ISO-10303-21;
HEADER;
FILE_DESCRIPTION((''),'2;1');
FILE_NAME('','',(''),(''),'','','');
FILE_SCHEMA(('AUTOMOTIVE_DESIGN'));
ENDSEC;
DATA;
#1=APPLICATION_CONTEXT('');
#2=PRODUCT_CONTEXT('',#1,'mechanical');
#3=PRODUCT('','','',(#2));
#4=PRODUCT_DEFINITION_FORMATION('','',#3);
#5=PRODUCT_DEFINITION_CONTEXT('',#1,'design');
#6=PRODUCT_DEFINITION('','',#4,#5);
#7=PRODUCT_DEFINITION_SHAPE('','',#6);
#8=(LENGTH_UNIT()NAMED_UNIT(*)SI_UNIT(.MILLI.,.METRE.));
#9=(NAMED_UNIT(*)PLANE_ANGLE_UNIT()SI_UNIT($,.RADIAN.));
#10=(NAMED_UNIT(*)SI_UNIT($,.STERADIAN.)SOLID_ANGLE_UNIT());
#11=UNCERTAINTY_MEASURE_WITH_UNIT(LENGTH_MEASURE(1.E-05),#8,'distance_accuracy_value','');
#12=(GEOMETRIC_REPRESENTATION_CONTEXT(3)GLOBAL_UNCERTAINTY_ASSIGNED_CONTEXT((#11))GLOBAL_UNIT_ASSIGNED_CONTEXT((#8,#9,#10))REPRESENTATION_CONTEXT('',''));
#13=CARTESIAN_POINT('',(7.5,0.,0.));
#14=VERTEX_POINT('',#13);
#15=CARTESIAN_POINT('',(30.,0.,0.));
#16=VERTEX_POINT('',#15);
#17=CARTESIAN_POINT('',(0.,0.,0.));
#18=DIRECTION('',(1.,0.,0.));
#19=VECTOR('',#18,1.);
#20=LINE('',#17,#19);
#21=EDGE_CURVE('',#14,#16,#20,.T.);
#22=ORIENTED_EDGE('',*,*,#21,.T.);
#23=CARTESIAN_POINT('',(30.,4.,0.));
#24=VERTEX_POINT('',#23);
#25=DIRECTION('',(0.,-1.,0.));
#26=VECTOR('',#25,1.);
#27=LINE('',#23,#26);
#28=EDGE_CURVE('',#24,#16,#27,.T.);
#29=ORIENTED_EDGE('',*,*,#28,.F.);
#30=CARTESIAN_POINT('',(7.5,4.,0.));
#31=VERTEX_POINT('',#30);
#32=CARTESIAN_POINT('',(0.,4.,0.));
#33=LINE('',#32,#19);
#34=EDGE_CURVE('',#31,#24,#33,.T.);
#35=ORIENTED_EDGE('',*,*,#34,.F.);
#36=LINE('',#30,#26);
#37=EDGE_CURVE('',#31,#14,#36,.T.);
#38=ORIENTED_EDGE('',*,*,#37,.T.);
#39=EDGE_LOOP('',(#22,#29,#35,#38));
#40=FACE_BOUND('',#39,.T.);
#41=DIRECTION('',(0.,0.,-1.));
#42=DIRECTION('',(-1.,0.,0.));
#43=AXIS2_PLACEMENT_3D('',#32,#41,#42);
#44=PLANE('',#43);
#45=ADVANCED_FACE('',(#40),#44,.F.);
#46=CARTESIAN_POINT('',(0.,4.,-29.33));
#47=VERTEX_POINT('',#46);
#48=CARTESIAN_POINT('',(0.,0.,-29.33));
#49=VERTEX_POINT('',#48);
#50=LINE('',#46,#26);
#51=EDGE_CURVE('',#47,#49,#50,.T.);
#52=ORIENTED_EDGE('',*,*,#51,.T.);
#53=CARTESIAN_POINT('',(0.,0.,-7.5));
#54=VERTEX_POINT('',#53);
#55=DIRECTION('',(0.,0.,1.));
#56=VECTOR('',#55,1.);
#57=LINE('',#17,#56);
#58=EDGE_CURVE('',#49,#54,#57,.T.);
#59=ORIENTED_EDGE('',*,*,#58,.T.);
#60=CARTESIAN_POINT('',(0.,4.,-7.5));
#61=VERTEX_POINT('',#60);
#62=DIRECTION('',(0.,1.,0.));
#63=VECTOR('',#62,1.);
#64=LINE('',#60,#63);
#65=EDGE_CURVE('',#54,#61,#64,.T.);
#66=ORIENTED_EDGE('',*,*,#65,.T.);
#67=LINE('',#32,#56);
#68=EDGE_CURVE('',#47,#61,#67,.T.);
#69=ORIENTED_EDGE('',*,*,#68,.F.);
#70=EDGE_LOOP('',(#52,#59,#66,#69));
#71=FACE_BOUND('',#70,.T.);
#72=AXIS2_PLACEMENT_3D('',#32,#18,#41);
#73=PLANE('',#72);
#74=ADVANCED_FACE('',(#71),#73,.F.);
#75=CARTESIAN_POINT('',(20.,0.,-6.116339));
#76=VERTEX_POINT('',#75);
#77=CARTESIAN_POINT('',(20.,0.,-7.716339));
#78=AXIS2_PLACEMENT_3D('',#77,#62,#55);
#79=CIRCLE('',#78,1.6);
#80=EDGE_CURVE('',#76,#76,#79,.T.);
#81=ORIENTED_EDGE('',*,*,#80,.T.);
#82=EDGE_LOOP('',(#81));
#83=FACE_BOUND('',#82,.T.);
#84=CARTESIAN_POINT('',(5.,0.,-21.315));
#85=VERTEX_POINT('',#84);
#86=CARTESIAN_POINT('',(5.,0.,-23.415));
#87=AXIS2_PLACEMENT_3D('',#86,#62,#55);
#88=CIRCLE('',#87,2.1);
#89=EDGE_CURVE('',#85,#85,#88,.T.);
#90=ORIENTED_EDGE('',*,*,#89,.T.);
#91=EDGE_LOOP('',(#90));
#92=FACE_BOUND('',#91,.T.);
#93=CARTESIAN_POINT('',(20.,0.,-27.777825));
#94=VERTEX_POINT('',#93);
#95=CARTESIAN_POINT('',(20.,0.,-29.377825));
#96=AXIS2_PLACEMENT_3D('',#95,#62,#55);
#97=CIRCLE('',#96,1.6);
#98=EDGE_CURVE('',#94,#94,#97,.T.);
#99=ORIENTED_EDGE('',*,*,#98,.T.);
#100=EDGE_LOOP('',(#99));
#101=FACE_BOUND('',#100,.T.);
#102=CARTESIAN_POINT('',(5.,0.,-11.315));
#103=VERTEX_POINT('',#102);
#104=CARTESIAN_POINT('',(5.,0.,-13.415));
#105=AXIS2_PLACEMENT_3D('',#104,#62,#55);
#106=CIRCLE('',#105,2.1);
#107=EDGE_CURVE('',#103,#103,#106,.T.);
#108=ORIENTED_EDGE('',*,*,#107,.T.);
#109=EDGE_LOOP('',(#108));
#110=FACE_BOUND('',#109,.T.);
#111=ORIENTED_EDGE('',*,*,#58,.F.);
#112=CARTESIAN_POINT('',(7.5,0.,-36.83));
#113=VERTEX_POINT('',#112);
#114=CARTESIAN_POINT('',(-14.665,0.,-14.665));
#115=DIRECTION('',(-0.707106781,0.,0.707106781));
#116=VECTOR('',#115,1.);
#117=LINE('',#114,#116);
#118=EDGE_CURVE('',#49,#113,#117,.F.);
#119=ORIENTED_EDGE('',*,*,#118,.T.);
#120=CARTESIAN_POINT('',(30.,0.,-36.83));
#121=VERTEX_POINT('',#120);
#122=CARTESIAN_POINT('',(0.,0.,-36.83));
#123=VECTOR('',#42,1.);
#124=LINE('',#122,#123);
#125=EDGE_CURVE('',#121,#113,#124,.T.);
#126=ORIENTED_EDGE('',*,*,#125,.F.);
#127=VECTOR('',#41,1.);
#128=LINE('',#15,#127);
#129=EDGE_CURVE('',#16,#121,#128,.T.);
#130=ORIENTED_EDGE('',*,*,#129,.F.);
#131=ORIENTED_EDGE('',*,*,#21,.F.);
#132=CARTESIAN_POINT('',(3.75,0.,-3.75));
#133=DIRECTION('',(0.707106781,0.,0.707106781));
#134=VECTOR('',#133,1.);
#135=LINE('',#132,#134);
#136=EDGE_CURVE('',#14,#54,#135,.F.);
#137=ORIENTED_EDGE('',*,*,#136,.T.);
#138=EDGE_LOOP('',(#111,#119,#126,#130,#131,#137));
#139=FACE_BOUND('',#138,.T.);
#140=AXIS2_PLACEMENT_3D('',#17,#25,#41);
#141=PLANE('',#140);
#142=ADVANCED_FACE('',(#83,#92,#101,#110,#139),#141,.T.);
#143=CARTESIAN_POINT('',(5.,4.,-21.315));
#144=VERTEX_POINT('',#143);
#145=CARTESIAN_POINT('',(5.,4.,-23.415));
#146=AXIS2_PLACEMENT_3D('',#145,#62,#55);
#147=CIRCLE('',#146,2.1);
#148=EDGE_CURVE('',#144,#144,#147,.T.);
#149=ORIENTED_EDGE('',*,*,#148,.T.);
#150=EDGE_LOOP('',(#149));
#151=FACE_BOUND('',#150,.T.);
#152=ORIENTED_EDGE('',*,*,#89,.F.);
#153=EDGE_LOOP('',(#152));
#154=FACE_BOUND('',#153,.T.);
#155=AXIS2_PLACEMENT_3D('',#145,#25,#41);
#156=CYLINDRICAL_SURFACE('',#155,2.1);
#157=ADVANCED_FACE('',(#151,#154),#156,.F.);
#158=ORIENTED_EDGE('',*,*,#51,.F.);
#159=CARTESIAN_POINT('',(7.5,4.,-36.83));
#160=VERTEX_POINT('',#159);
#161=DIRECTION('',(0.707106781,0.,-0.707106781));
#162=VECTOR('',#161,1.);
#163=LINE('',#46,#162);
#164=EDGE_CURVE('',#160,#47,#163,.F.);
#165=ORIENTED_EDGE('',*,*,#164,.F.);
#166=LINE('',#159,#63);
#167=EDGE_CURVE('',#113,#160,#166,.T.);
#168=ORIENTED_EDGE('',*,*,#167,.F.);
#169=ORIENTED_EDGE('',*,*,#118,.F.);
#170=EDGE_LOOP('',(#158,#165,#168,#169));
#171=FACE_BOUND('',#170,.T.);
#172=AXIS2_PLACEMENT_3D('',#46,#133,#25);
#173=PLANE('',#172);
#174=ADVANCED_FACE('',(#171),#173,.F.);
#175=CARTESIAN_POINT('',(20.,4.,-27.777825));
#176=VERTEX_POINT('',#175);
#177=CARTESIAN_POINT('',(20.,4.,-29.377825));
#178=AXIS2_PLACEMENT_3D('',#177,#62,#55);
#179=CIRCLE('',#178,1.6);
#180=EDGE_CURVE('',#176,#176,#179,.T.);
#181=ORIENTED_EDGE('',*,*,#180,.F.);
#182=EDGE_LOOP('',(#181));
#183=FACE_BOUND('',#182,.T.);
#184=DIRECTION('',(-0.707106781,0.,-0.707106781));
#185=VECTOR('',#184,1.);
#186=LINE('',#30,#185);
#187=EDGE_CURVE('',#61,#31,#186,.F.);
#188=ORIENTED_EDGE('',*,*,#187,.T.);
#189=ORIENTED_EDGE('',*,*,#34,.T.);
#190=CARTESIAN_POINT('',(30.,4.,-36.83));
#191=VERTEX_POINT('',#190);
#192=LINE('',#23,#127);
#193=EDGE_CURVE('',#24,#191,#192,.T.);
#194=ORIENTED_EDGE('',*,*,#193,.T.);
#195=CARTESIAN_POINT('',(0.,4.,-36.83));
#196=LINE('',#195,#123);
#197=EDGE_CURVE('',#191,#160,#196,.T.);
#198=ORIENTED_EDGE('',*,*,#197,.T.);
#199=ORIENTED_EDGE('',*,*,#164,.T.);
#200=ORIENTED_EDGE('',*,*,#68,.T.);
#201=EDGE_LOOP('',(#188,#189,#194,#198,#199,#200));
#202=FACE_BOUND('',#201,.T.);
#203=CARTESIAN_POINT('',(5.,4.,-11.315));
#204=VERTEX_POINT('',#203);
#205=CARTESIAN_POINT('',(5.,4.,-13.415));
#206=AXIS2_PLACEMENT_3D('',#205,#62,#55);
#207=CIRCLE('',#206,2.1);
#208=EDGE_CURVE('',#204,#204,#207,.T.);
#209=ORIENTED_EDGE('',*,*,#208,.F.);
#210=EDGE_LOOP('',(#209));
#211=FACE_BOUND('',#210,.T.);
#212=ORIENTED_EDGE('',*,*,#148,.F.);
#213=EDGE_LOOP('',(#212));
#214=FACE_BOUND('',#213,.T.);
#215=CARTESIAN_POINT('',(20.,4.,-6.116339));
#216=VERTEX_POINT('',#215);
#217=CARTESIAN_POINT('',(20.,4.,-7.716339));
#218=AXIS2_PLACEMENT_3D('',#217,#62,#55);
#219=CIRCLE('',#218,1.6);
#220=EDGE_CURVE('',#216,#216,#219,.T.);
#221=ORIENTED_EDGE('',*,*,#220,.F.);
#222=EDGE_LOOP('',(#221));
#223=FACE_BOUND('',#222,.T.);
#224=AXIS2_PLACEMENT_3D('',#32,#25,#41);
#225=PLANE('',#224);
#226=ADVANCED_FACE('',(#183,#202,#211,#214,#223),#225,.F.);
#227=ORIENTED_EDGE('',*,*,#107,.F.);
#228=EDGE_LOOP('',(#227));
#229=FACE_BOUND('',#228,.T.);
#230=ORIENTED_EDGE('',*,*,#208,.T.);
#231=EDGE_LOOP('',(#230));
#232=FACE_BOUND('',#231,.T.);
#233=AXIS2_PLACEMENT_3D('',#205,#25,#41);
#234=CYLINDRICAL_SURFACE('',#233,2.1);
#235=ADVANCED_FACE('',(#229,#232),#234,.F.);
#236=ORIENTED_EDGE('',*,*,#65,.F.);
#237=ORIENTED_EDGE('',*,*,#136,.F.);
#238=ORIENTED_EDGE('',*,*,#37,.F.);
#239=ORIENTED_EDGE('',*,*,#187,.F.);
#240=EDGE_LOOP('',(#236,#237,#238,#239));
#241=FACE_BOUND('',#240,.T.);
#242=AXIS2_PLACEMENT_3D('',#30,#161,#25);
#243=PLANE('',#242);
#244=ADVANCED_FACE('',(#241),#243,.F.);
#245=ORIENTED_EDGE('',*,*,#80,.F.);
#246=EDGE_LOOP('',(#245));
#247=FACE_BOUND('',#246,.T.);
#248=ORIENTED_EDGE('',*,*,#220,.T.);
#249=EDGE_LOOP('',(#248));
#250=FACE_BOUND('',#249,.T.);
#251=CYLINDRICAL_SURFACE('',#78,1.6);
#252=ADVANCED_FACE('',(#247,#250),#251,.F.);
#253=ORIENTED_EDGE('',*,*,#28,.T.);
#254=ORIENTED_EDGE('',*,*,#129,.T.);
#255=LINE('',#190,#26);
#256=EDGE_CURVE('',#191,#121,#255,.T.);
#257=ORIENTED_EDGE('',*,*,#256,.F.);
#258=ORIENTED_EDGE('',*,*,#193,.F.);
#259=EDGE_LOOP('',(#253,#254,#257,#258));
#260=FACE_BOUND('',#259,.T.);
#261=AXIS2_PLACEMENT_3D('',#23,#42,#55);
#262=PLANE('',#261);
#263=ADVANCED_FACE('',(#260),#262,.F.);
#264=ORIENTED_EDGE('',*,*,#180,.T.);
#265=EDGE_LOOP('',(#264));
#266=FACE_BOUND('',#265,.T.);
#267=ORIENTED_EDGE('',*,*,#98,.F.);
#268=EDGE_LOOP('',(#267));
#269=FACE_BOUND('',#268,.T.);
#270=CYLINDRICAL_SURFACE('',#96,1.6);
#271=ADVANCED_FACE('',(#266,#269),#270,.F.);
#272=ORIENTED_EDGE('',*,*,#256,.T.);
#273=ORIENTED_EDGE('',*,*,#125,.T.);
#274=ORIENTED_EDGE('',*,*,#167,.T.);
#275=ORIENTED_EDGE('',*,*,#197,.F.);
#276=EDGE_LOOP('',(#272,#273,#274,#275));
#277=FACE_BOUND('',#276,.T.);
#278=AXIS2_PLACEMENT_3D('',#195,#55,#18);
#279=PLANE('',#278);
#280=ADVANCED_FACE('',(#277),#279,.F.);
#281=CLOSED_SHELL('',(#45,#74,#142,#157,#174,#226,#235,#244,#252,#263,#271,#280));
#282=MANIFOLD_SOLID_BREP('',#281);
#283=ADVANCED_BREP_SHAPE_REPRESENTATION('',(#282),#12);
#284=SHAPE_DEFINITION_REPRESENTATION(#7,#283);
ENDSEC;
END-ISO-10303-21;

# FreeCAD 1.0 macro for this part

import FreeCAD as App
import Part
import Sketcher


def edges_at(feature, points):
    """Names of the edges that pass closest to the given points."""
    edges = feature.Shape.Edges
    near = lambda p: min(range(len(edges)), key=lambda i: edges[i].distToShape(Part.Vertex(*p))[0])
    return sorted({f"Edge{near(p) + 1}" for p in points})

doc = App.newDocument("Part")
body = doc.addObject("PartDesign::Body", "Body")

# Sketch on XZ plane
sketch1 = body.newObject("Sketcher::SketchObject", "Sketch")
sketch1.AttachmentSupport = (doc.getObject("XZ_Plane"), [""])
sketch1.MapMode = "FlatFace"
sketch1.addGeometry([
    Part.LineSegment(App.Vector(0, -36.83, 0), App.Vector(0, 0, 0)),  # 0
    Part.LineSegment(App.Vector(0, 0, 0), App.Vector(30, 0, 0)),  # 1
    Part.LineSegment(App.Vector(30, 0, 0), App.Vector(30, -36.83, 0)),  # 2
    Part.LineSegment(App.Vector(30, -36.83, 0), App.Vector(0, -36.83, 0)),  # 3
    Part.Circle(App.Vector(5, -13.415, 0), App.Vector(0, 0, 1), 2.1),  # 4
    Part.Circle(App.Vector(5, -23.415, 0), App.Vector(0, 0, 1), 2.1),  # 5
], False)
sketch1.addConstraint([
    Sketcher.Constraint("Coincident", 0, 2, 1, 1),
    Sketcher.Constraint("Coincident", 1, 2, 2, 1),
    Sketcher.Constraint("Coincident", 2, 2, 3, 1),
    Sketcher.Constraint("Coincident", 3, 2, 0, 1),
    Sketcher.Constraint("Vertical", 0),
    Sketcher.Constraint("Horizontal", 1),
    Sketcher.Constraint("Vertical", 2),
    Sketcher.Constraint("Horizontal", 3),
    Sketcher.Constraint("Coincident", 0, 2, -1, 1),
    Sketcher.Constraint("Equal", 4, 5),
    Sketcher.Constraint("Vertical", 4, 3, 5, 3),
    Sketcher.Constraint("Diameter", 4, 4.2),
    Sketcher.Constraint("DistanceX", 1, 1, 1, 2, 30.0),
    Sketcher.Constraint("DistanceX", -1, 1, 4, 3, 5.0),
    Sketcher.Constraint("DistanceY", 5, 3, 4, 3, 10.0),
    Sketcher.Constraint("DistanceY", 0, 1, 0, 2, 36.83),
    Sketcher.Constraint("DistanceY", 4, 3, -1, 1, 13.415),
])
pad1 = body.newObject("PartDesign::Pad", "Pad")
pad1.Profile = sketch1
pad1.Length = 4
pad1.Reversed = True
doc.recompute()

chamfer = body.newObject("PartDesign::Chamfer", "Chamfer")
chamfer.Base = (pad1, edges_at(pad1, [(0, 2, -36.83), (0, 2, 0)]))
chamfer.Size = 7.5

# Sketch on XZ plane
sketch2 = body.newObject("Sketcher::SketchObject", "Sketch001")
sketch2.AttachmentSupport = (doc.getObject("XZ_Plane"), [""])
sketch2.MapMode = "FlatFace"
sketch2.AttachmentOffset = App.Placement(App.Vector(0, 0, -4), App.Rotation())
sketch2.addGeometry([
    Part.Circle(App.Vector(20, -29.377825, 0), App.Vector(0, 0, 1), 1.6),
    Part.Circle(App.Vector(20, -7.716339, 0), App.Vector(0, 0, 1), 1.6),
], False)
sketch2.addConstraint([
    Sketcher.Constraint("Equal", 0, 1),
    Sketcher.Constraint("Vertical", 0, 3, 1, 3),
    Sketcher.Constraint("Diameter", 0, 3.2),
    Sketcher.Constraint("DistanceX", -1, 1, 0, 3, 20.0),
    Sketcher.Constraint("DistanceY", 1, 3, -1, 1, 7.716339),
    Sketcher.Constraint("DistanceY", 0, 3, -1, 1, 29.377825),
])
pocket1 = body.newObject("PartDesign::Pocket", "Pocket")
pocket1.Profile = sketch2
pocket1.Type = "ThroughAll"
pocket1.Reversed = True

doc.recompute()
